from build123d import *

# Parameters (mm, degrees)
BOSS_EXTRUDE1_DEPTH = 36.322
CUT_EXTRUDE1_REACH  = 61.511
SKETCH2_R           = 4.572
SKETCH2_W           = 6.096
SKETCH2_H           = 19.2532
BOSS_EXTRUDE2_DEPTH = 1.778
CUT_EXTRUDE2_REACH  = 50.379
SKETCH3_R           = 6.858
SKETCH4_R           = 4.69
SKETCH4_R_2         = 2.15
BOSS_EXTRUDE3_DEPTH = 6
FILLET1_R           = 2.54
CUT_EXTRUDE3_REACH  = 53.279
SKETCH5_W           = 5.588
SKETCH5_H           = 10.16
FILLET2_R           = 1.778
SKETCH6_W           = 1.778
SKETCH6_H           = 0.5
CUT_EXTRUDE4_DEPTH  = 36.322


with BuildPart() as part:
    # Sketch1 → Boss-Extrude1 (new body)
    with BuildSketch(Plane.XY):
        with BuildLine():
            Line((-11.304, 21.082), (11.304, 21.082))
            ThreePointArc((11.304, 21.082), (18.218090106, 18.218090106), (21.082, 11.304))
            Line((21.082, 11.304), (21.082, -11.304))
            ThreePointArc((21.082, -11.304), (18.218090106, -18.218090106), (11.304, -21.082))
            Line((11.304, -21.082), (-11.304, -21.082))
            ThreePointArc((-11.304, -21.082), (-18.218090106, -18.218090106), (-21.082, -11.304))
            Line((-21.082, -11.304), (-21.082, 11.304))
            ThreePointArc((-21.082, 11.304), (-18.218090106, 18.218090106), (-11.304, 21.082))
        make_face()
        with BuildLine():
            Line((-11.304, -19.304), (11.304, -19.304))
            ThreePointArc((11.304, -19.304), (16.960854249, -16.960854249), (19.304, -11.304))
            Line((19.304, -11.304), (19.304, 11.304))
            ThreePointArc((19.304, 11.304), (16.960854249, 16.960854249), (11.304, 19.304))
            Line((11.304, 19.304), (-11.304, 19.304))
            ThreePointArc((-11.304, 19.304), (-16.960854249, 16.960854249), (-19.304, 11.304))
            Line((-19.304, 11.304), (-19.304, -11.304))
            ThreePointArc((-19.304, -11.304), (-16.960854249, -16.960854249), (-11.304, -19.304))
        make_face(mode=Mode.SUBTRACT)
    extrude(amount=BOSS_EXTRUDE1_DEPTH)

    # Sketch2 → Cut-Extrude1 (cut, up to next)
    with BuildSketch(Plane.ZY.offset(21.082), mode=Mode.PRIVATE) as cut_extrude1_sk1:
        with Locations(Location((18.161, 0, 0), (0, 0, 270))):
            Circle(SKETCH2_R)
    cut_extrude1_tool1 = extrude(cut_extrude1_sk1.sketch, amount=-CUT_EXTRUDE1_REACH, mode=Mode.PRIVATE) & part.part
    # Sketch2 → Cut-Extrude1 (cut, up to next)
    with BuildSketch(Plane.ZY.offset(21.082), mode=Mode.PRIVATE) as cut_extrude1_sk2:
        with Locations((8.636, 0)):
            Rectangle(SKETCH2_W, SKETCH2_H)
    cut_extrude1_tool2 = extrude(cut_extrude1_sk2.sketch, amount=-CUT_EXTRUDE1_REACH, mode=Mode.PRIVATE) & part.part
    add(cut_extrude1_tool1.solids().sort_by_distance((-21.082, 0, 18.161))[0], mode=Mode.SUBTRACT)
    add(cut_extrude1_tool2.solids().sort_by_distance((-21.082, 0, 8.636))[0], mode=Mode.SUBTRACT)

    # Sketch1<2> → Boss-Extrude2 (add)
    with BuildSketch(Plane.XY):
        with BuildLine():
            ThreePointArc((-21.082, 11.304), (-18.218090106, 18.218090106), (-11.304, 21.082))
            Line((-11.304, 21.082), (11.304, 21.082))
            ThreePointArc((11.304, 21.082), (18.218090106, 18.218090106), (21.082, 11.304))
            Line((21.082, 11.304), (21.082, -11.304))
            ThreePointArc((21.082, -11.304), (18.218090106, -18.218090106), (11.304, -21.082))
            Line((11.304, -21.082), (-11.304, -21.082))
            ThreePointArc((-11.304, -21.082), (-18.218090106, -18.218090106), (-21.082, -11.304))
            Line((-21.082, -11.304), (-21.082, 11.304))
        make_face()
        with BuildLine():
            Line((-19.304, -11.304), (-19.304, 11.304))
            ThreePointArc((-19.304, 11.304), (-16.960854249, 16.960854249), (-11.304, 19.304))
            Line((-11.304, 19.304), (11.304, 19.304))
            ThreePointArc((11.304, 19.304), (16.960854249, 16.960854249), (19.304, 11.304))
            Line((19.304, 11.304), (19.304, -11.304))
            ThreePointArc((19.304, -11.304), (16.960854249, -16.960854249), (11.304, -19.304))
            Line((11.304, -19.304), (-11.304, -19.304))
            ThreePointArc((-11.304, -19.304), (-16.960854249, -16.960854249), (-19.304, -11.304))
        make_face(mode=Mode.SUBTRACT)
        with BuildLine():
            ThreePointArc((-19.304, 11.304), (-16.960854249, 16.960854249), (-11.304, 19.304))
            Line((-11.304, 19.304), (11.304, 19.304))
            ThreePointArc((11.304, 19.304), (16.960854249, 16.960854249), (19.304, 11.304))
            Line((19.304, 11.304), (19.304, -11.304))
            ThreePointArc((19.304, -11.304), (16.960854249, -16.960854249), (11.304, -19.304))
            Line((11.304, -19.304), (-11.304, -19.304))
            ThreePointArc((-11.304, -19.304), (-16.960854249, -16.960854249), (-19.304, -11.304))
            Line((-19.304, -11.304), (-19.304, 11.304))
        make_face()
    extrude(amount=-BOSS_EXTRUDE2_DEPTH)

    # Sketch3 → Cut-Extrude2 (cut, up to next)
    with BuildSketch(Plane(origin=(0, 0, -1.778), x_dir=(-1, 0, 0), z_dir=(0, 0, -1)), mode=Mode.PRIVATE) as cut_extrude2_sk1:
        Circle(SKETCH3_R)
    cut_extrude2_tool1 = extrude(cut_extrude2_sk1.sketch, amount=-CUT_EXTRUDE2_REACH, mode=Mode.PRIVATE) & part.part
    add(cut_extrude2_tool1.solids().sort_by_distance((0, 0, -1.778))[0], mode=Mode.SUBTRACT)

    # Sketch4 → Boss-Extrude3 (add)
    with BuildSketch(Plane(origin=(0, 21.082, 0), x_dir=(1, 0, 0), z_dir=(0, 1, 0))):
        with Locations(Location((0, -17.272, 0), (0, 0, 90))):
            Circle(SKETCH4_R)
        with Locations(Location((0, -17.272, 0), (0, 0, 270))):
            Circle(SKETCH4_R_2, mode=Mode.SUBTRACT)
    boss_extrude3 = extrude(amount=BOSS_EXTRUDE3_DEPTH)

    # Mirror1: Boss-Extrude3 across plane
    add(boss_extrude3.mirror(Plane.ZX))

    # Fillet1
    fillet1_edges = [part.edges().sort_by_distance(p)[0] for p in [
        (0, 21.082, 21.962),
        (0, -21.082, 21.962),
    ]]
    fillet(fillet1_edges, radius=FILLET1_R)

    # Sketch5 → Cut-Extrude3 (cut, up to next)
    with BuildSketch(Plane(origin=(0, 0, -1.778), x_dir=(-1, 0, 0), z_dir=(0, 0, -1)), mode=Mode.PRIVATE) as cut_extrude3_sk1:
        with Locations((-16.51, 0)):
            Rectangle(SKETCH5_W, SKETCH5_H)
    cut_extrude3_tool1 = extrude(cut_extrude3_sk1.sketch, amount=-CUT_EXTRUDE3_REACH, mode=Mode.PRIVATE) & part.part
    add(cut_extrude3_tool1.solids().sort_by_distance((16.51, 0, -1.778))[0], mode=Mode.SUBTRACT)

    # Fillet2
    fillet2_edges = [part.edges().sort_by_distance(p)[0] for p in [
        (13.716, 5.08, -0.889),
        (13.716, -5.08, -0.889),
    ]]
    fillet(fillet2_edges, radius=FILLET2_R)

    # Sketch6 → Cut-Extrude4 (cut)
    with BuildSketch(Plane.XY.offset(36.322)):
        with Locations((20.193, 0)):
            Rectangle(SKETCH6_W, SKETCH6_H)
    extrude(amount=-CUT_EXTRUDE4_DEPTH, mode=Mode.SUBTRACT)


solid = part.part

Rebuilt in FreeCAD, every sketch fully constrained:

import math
import FreeCAD as App
import Part
import Sketcher
Q = App.Units.Quantity


def edges_at(feature, points):
    """Names of the edges that pass closest to the given points."""
    edges = feature.Shape.Edges
    near = lambda p: min(range(len(edges)), key=lambda i: edges[i].distToShape(Part.Vertex(*p))[0])
    return sorted({f"Edge{near(p) + 1}" for p in points})


def add_polygon(sketch, points):
    """Adds a closed chain of lines whose ends are joined by coincident constraints."""
    first, n = sketch.GeometryCount, len(points)
    for a, b in zip(points, points[1:] + points[:1]):
        sketch.addGeometry(Part.LineSegment(App.Vector(*a, 0), App.Vector(*b, 0)), False)
    for i in range(n):
        sketch.addConstraint(Sketcher.Constraint("Coincident", first + i, 2, first + (i + 1) % n, 1))

doc = App.newDocument("Part")
body = doc.addObject("PartDesign::Body", "Body")

sketch1 = body.newObject("Sketcher::SketchObject", "Sketch")
sketch1.AttachmentSupport = (doc.getObject("XY_Plane"), [""])
sketch1.MapMode = "FlatFace"
sketch1.addGeometry(Part.LineSegment(App.Vector(11.304, 21.082, 0), App.Vector(-11.304, 21.082, 0)), False)
sketch1.addGeometry(Part.ArcOfCircle(Part.Circle(App.Vector(-11.304, 11.304, 0), App.Vector(0, 0, 1), 9.778), math.radians(90), math.radians(180)), False)
sketch1.addGeometry(Part.LineSegment(App.Vector(-21.082, 11.304, 0), App.Vector(-21.082, -11.304, 0)), False)
sketch1.addGeometry(Part.ArcOfCircle(Part.Circle(App.Vector(-11.304, -11.304, 0), App.Vector(0, 0, 1), 9.778), math.radians(-180), math.radians(-90)), False)
sketch1.addGeometry(Part.LineSegment(App.Vector(-11.304, -21.082, 0), App.Vector(11.304, -21.082, 0)), False)
sketch1.addGeometry(Part.ArcOfCircle(Part.Circle(App.Vector(11.304, -11.304, 0), App.Vector(0, 0, 1), 9.778), math.radians(-90), math.radians(0)), False)
sketch1.addGeometry(Part.LineSegment(App.Vector(21.082, -11.304, 0), App.Vector(21.082, 11.304, 0)), False)
sketch1.addGeometry(Part.ArcOfCircle(Part.Circle(App.Vector(11.304, 11.304, 0), App.Vector(0, 0, 1), 9.778), math.radians(0), math.radians(90)), False)
sketch1.addGeometry(Part.ArcOfCircle(Part.Circle(App.Vector(-11.304, -11.304, 0), App.Vector(0, 0, 1), 8), math.radians(-180), math.radians(-90)), False)
sketch1.addGeometry(Part.LineSegment(App.Vector(-19.304, -11.304, 0), App.Vector(-19.304, 11.304, 0)), False)
sketch1.addGeometry(Part.ArcOfCircle(Part.Circle(App.Vector(-11.304, 11.304, 0), App.Vector(0, 0, 1), 8), math.radians(90), math.radians(180)), False)
sketch1.addGeometry(Part.LineSegment(App.Vector(-11.304, 19.304, 0), App.Vector(11.304, 19.304, 0)), False)
sketch1.addGeometry(Part.ArcOfCircle(Part.Circle(App.Vector(11.304, 11.304, 0), App.Vector(0, 0, 1), 8), math.radians(0), math.radians(90)), False)
sketch1.addGeometry(Part.LineSegment(App.Vector(19.304, 11.304, 0), App.Vector(19.304, -11.304, 0)), False)
sketch1.addGeometry(Part.ArcOfCircle(Part.Circle(App.Vector(11.304, -11.304, 0), App.Vector(0, 0, 1), 8), math.radians(-90), math.radians(0)), False)
sketch1.addGeometry(Part.LineSegment(App.Vector(11.304, -19.304, 0), App.Vector(-11.304, -19.304, 0)), False)
sketch1.addConstraint(Sketcher.Constraint("Tangent", 0, 2, 1, 1))
sketch1.addConstraint(Sketcher.Constraint("Tangent", 1, 2, 2, 1))
sketch1.addConstraint(Sketcher.Constraint("Tangent", 2, 2, 3, 1))
sketch1.addConstraint(Sketcher.Constraint("Tangent", 3, 2, 4, 1))
sketch1.addConstraint(Sketcher.Constraint("Tangent", 4, 2, 5, 1))
sketch1.addConstraint(Sketcher.Constraint("Tangent", 5, 2, 6, 1))
sketch1.addConstraint(Sketcher.Constraint("Tangent", 6, 2, 7, 1))
sketch1.addConstraint(Sketcher.Constraint("Tangent", 7, 2, 0, 1))
sketch1.addConstraint(Sketcher.Constraint("Tangent", 8, 1, 9, 1))
sketch1.addConstraint(Sketcher.Constraint("Tangent", 9, 2, 10, 2))
sketch1.addConstraint(Sketcher.Constraint("Tangent", 10, 1, 11, 1))
sketch1.addConstraint(Sketcher.Constraint("Tangent", 11, 2, 12, 2))
sketch1.addConstraint(Sketcher.Constraint("Tangent", 12, 1, 13, 1))
sketch1.addConstraint(Sketcher.Constraint("Tangent", 13, 2, 14, 2))
sketch1.addConstraint(Sketcher.Constraint("Tangent", 14, 1, 15, 1))
sketch1.addConstraint(Sketcher.Constraint("Tangent", 15, 2, 8, 2))
sketch1.addConstraint(Sketcher.Constraint("Horizontal", 0))
sketch1.addConstraint(Sketcher.Constraint("Vertical", 2))
sketch1.addConstraint(Sketcher.Constraint("Horizontal", 4))
sketch1.addConstraint(Sketcher.Constraint("Vertical", 6))
sketch1.addConstraint(Sketcher.Constraint("Vertical", 9))
sketch1.addConstraint(Sketcher.Constraint("Horizontal", 11))
sketch1.addConstraint(Sketcher.Constraint("Vertical", 13))
sketch1.addConstraint(Sketcher.Constraint("Horizontal", 15))
sketch1.addConstraint(Sketcher.Constraint("Coincident", 8, 3, 3, 3))
sketch1.addConstraint(Sketcher.Constraint("Coincident", 10, 3, 1, 3))
sketch1.addConstraint(Sketcher.Constraint("Coincident", 12, 3, 7, 3))
sketch1.addConstraint(Sketcher.Constraint("Equal", 1, 3))
sketch1.addConstraint(Sketcher.Constraint("Equal", 3, 5))
sketch1.addConstraint(Sketcher.Constraint("Equal", 5, 7))
sketch1.addConstraint(Sketcher.Constraint("Equal", 12, 14))
sketch1.addConstraint(Sketcher.Constraint("Symmetric", 1, 3, 5, 3, -1, 1))
sketch1.addConstraint(Sketcher.Constraint("Equal", 15, 2))
sketch1.addConstraint(Sketcher.Constraint("DistanceY", -1, 1, 0, 2, Q("0.83 in")))
sketch1.addConstraint(Sketcher.Constraint("DistanceX", 8, 1, -1, 1, Q("0.76 in")))
sketch1.addConstraint(Sketcher.Constraint("Radius", 1, 9.778))
pad1 = body.newObject("PartDesign::Pad", "Pad")
pad1.Profile = sketch1
pad1.Length = Q("1.43 in")

sketch2 = body.newObject("Sketcher::SketchObject", "Sketch001")
sketch2.AttachmentSupport = (doc.getObject("YZ_Plane"), [""])
sketch2.MapMode = "FlatFace"
sketch2.AttachmentOffset = App.Placement(App.Vector(0, 0, -0.83 * 25.4), App.Rotation())
sketch2.addGeometry(Part.Circle(App.Vector(0, 18.161, 0), App.Vector(0, 0, 1), 4.572), False)
sketch2.addConstraint(Sketcher.Constraint("PointOnObject", 0, 3, -2))
sketch2.addConstraint(Sketcher.Constraint("Diameter", 0, Q("0.36 in")))
sketch2.addConstraint(Sketcher.Constraint("DistanceY", -1, 1, 0, 3, Q("0.715 in")))
pocket1 = body.newObject("PartDesign::Pocket", "Pocket")
pocket1.Profile = sketch2
pocket1.Type = "UpToFirst"
pocket1.Reversed = True

sketch3 = body.newObject("Sketcher::SketchObject", "Sketch002")
sketch3.AttachmentSupport = (doc.getObject("YZ_Plane"), [""])
sketch3.MapMode = "FlatFace"
sketch3.AttachmentOffset = App.Placement(App.Vector(0, 0, -0.83 * 25.4), App.Rotation())
add_polygon(sketch3, [(9.6266, 5.588), (-9.6266, 5.588), (-9.6266, 11.684), (9.6266, 11.684)])
sketch3.addConstraint(Sketcher.Constraint("Horizontal", 0))
sketch3.addConstraint(Sketcher.Constraint("Vertical", 1))
sketch3.addConstraint(Sketcher.Constraint("Horizontal", 2))
sketch3.addConstraint(Sketcher.Constraint("Vertical", 3))
sketch3.addConstraint(Sketcher.Constraint("DistanceY", 1, 1, 1, 2, Q("0.24 in")))
sketch3.addConstraint(Sketcher.Constraint("DistanceX", 0, 2, 0, 1, Q("0.758 in")))
sketch3.addConstraint(Sketcher.Constraint("DistanceY", -1, 1, 0, 2, Q("0.22 in")))
sketch3.addConstraint(Sketcher.Constraint("DistanceX", 0, 2, -1, 1, Q("0.379 in")))
pocket2 = body.newObject("PartDesign::Pocket", "Pocket001")
pocket2.Profile = sketch3
pocket2.Type = "UpToFirst"
pocket2.Reversed = True

sketch4 = body.newObject("Sketcher::SketchObject", "Sketch003")
sketch4.AttachmentSupport = (doc.getObject("XY_Plane"), [""])
sketch4.MapMode = "FlatFace"
sketch4.addGeometry(Part.ArcOfCircle(Part.Circle(App.Vector(-11.304, 11.304, 0), App.Vector(0, 0, 1), 9.778), math.radians(90), math.radians(180)), False)
sketch4.addGeometry(Part.LineSegment(App.Vector(-21.082, 11.304, 0), App.Vector(-21.082, -11.304, 0)), False)
sketch4.addGeometry(Part.ArcOfCircle(Part.Circle(App.Vector(-11.304, -11.304, 0), App.Vector(0, 0, 1), 9.778), math.radians(-180), math.radians(-90)), False)
sketch4.addGeometry(Part.LineSegment(App.Vector(-11.304, -21.082, 0), App.Vector(11.304, -21.082, 0)), False)
sketch4.addGeometry(Part.ArcOfCircle(Part.Circle(App.Vector(11.304, -11.304, 0), App.Vector(0, 0, 1), 9.778), math.radians(-90), math.radians(0)), False)
sketch4.addGeometry(Part.LineSegment(App.Vector(21.082, -11.304, 0), App.Vector(21.082, 11.304, 0)), False)
sketch4.addGeometry(Part.ArcOfCircle(Part.Circle(App.Vector(11.304, 11.304, 0), App.Vector(0, 0, 1), 9.778), math.radians(0), math.radians(90)), False)
sketch4.addGeometry(Part.LineSegment(App.Vector(11.304, 21.082, 0), App.Vector(-11.304, 21.082, 0)), False)
sketch4.addConstraint(Sketcher.Constraint("Tangent", 0, 2, 1, 1))
sketch4.addConstraint(Sketcher.Constraint("Tangent", 1, 2, 2, 1))
sketch4.addConstraint(Sketcher.Constraint("Tangent", 2, 2, 3, 1))
sketch4.addConstraint(Sketcher.Constraint("Tangent", 3, 2, 4, 1))
sketch4.addConstraint(Sketcher.Constraint("Tangent", 4, 2, 5, 1))
sketch4.addConstraint(Sketcher.Constraint("Tangent", 5, 2, 6, 1))
sketch4.addConstraint(Sketcher.Constraint("Tangent", 6, 2, 7, 1))
sketch4.addConstraint(Sketcher.Constraint("Tangent", 7, 2, 0, 1))
sketch4.addConstraint(Sketcher.Constraint("Vertical", 1))
sketch4.addConstraint(Sketcher.Constraint("Horizontal", 3))
sketch4.addConstraint(Sketcher.Constraint("Vertical", 5))
sketch4.addConstraint(Sketcher.Constraint("Horizontal", 7))
sketch4.addConstraint(Sketcher.Constraint("Equal", 0, 2))
sketch4.addConstraint(Sketcher.Constraint("Equal", 2, 4))
sketch4.addConstraint(Sketcher.Constraint("Equal", 4, 6))
sketch4.addConstraint(Sketcher.Constraint("Symmetric", 0, 3, 4, 3, -1, 1))
sketch4.addConstraint(Sketcher.Constraint("Equal", 7, 1))
sketch4.addConstraint(Sketcher.Constraint("DistanceX", 0, 2, -1, 1, Q("0.83 in")))
sketch4.addConstraint(Sketcher.Constraint("Radius", 0, 9.778))
pad2 = body.newObject("PartDesign::Pad", "Pad001")
pad2.Profile = sketch4
pad2.Length = Q("0.07 in")
pad2.Reversed = True

sketch5 = body.newObject("Sketcher::SketchObject", "Sketch004")
sketch5.AttachmentSupport = (doc.getObject("XY_Plane"), [""])
sketch5.MapMode = "FlatFace"
sketch5.AttachmentOffset = App.Placement(App.Vector(0, 0, -0.07 * 25.4), App.Rotation())
sketch5.addGeometry(Part.Circle(App.Vector(0, 0, 0), App.Vector(0, 0, 1), 6.858), False)
sketch5.addConstraint(Sketcher.Constraint("Coincident", 0, 3, -1, 1))
sketch5.addConstraint(Sketcher.Constraint("Diameter", 0, Q("0.54 in")))
pocket3 = body.newObject("PartDesign::Pocket", "Pocket002")
pocket3.Profile = sketch5
pocket3.Type = "UpToFirst"
pocket3.Reversed = True

sketch6 = body.newObject("Sketcher::SketchObject", "Sketch005")
sketch6.AttachmentSupport = (doc.getObject("XZ_Plane"), [""])
sketch6.MapMode = "FlatFace"
sketch6.AttachmentOffset = App.Placement(App.Vector(0, 0, -0.83 * 25.4), App.Rotation())
sketch6.addGeometry(Part.Circle(App.Vector(0, 17.272, 0), App.Vector(0, 0, 1), 4.69), False)
sketch6.addGeometry(Part.Circle(App.Vector(0, 17.272, 0), App.Vector(0, 0, 1), 2.15), False)
sketch6.addConstraint(Sketcher.Constraint("Coincident", 1, 3, 0, 3))
sketch6.addConstraint(Sketcher.Constraint("PointOnObject", 0, 3, -2))
sketch6.addConstraint(Sketcher.Constraint("Diameter", 0, 9.38))
sketch6.addConstraint(Sketcher.Constraint("Diameter", 1, 4.3))
sketch6.addConstraint(Sketcher.Constraint("DistanceY", -1, 1, 0, 3, Q("0.68 in")))
pad3 = body.newObject("PartDesign::Pad", "Pad002")
pad3.Profile = sketch6
pad3.Length = 6
pad3.Reversed = True
doc.recompute()

mirrored = body.newObject("PartDesign::Mirrored", "Mirrored")
mirrored.Originals = [pad3]
mirrored.MirrorPlane = (doc.getObject("XZ_Plane"), [""])
body.Tip = mirrored
doc.recompute()

fillet = body.newObject("PartDesign::Fillet", "Fillet")
fillet.Base = (mirrored, edges_at(mirrored, [(0, 21.082, 21.962), (0, -21.082, 21.962)]))
fillet.Radius = Q("0.1 in")

sketch7 = body.newObject("Sketcher::SketchObject", "Sketch006")
sketch7.AttachmentSupport = (doc.getObject("XY_Plane"), [""])
sketch7.MapMode = "FlatFace"
sketch7.AttachmentOffset = App.Placement(App.Vector(0, 0, -0.07 * 25.4), App.Rotation())
add_polygon(sketch7, [(19.304, 5.08), (19.304, -5.08), (13.716, -5.08), (13.716, 5.08)])
sketch7.addConstraint(Sketcher.Constraint("Vertical", 0))
sketch7.addConstraint(Sketcher.Constraint("Horizontal", 1))
sketch7.addConstraint(Sketcher.Constraint("Vertical", 2))
sketch7.addConstraint(Sketcher.Constraint("Horizontal", 3))
sketch7.addConstraint(Sketcher.Constraint("DistanceY", 0, 2, 0, 1, Q("0.4 in")))
sketch7.addConstraint(Sketcher.Constraint("DistanceX", 1, 2, 1, 1, Q("0.22 in")))
sketch7.addConstraint(Sketcher.Constraint("DistanceY", 0, 2, -1, 1, Q("0.2 in")))
sketch7.addConstraint(Sketcher.Constraint("DistanceX", -1, 1, 0, 2, Q("0.76 in")))
pocket4 = body.newObject("PartDesign::Pocket", "Pocket003")
pocket4.Profile = sketch7
pocket4.Type = "UpToFirst"
pocket4.Reversed = True
doc.recompute()

fillet2 = body.newObject("PartDesign::Fillet", "Fillet001")
fillet2.Base = (pocket4, edges_at(pocket4, [(13.716, 5.08, -0.889), (13.716, -5.08, -0.889)]))
fillet2.Radius = Q("0.07 in")

sketch8 = body.newObject("Sketcher::SketchObject", "Sketch007")
sketch8.AttachmentSupport = (doc.getObject("XY_Plane"), [""])
sketch8.MapMode = "FlatFace"
sketch8.AttachmentOffset = App.Placement(App.Vector(0, 0, 1.43 * 25.4), App.Rotation())
add_polygon(sketch8, [(19.304, 0.25), (19.304, -0.25), (21.082, -0.25), (21.082, 0.25)])
sketch8.addConstraint(Sketcher.Constraint("Vertical", 0))
sketch8.addConstraint(Sketcher.Constraint("Horizontal", 1))
sketch8.addConstraint(Sketcher.Constraint("Vertical", 2))
sketch8.addConstraint(Sketcher.Constraint("Horizontal", 3))
sketch8.addConstraint(Sketcher.Constraint("DistanceX", 1, 1, 1, 2, Q("0.07 in")))
sketch8.addConstraint(Sketcher.Constraint("DistanceX", -1, 1, 0, 2, Q("0.76 in")))
sketch8.addConstraint(Sketcher.Constraint("DistanceY", 0, 2, 0, 1, 0.5))
sketch8.addConstraint(Sketcher.Constraint("DistanceY", 0, 2, -1, 1, 0.25))
pocket5 = body.newObject("PartDesign::Pocket", "Pocket004")
pocket5.Profile = sketch8
pocket5.Length = Q("1.43 in")

doc.recompute()
